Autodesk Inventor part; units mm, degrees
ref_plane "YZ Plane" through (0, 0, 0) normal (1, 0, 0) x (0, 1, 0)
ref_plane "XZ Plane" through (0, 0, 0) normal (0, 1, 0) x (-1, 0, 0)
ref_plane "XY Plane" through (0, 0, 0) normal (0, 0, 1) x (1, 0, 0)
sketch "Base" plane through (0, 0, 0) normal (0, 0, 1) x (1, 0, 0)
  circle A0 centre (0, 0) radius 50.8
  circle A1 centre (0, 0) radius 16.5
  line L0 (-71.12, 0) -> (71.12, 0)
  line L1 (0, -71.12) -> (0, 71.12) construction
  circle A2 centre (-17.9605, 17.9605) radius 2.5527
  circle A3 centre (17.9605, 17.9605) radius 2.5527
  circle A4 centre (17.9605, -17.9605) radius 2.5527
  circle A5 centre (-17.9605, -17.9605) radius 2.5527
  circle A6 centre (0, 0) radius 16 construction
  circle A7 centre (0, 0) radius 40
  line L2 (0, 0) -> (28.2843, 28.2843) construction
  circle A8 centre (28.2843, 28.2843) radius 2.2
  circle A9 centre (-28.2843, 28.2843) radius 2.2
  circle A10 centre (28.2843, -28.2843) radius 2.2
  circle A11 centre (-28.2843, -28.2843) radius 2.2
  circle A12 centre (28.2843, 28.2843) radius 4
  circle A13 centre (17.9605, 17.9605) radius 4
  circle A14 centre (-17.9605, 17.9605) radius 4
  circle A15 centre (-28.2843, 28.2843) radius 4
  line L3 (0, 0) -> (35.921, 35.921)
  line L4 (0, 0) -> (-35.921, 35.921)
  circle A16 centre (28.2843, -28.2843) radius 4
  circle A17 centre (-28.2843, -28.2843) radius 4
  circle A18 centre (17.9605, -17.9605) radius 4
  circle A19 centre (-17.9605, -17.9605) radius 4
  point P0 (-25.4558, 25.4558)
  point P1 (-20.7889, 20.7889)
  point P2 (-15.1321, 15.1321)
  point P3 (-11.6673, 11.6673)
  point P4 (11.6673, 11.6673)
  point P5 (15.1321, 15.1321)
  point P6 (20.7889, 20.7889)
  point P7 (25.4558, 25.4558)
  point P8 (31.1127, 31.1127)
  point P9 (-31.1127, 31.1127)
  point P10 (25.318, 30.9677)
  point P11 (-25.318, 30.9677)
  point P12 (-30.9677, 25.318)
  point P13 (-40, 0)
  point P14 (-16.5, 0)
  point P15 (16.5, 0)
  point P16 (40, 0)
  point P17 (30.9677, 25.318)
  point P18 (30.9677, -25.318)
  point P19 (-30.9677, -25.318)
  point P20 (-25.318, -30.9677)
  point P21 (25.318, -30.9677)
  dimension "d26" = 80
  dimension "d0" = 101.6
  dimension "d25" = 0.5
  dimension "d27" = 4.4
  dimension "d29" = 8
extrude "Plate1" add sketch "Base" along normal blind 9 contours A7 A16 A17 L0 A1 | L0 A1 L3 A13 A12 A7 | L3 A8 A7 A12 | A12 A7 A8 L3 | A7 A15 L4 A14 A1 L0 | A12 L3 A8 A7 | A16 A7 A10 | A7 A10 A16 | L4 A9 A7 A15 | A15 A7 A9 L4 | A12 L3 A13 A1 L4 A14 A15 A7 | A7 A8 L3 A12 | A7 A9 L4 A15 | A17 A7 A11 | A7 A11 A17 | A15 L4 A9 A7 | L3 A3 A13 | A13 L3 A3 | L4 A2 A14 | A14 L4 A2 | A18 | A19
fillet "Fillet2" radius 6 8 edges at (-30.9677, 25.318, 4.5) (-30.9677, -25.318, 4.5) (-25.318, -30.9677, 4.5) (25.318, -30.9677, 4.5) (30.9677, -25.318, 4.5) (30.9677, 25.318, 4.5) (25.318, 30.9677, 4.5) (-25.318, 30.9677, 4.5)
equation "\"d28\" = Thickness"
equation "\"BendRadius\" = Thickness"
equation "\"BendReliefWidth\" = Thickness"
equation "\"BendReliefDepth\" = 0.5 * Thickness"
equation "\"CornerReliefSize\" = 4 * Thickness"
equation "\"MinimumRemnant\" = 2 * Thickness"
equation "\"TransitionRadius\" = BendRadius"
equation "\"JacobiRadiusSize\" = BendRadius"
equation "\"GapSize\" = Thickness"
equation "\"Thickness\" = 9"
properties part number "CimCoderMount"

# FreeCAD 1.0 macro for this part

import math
import FreeCAD as App
import Part
import Sketcher

V = App.Vector


def edges_at(feature, points):
    """Names of the edges that pass closest to the given points."""
    edges = feature.Shape.Edges
    near = lambda p: min(range(len(edges)), key=lambda i: edges[i].distToShape(Part.Vertex(*p))[0])
    return sorted({f"Edge{near(p) + 1}" for p in points})

doc = App.newDocument("Part")
body = doc.addObject("PartDesign::Body", "Body")

# Sketch on XY plane
sketch1 = doc.addObject("Sketcher::SketchObject", "Sketch")
body.addObject(sketch1)
sketch1.AttachmentSupport = (doc.XY_Plane, [""])
sketch1.MapMode = "FlatFace"
sketch1.addGeometry([
    Part.ArcOfCircle(Part.Circle(V(0, 0, 0), V(0, 0, 1), 40), math.radians(-39), math.radians(39)),  # 0
    Part.ArcOfCircle(Part.Circle(V(28.3, 28.3, 0), V(0, 0, 1), 4), math.radians(-48), math.radians(138)),  # 1
    Part.ArcOfCircle(Part.Circle(V(0, 0, 0), V(0, 0, 1), 40), math.radians(51), math.radians(129)),  # 2
    Part.ArcOfCircle(Part.Circle(V(-28.3, 28.3, 0), V(0, 0, 1), 4), math.radians(42), math.radians(228)),  # 3
    Part.ArcOfCircle(Part.Circle(V(0, 0, 0), V(0, 0, 1), 40), math.radians(141), math.radians(219)),  # 4
    Part.ArcOfCircle(Part.Circle(V(-28.3, -28.3, 0), V(0, 0, 1), 4), math.radians(132), math.radians(318)),  # 5
    Part.ArcOfCircle(Part.Circle(V(0, 0, 0), V(0, 0, 1), 40), math.radians(-129), math.radians(-51)),  # 6
    Part.ArcOfCircle(Part.Circle(V(28.3, -28.3, 0), V(0, 0, 1), 4), math.radians(-138), math.radians(48)),  # 7
    Part.Circle(V(0, 0, 0), V(0, 0, 1), 16.5),  # 8
    Part.Circle(V(28.3, -28.3, 0), V(0, 0, 1), 2.2),  # 9
    Part.Circle(V(-28.3, -28.3, 0), V(0, 0, 1), 2.2),  # 10
    Part.Circle(V(-18, -18, 0), V(0, 0, 1), 2.6),  # 11
    Part.Circle(V(18, -18, 0), V(0, 0, 1), 2.6),  # 12
    Part.Circle(V(-28.3, 28.3, 0), V(0, 0, 1), 2.2),  # 13
    Part.Circle(V(-18, 18, 0), V(0, 0, 1), 2.6),  # 14
    Part.Circle(V(18, 18, 0), V(0, 0, 1), 2.6),  # 15
    Part.Circle(V(28.3, 28.3, 0), V(0, 0, 1), 2.2),  # 16
], False)
sketch1.addConstraint([
    Sketcher.Constraint("Coincident", 0, 2, 1, 1),
    Sketcher.Constraint("Coincident", 1, 2, 2, 1),
    Sketcher.Constraint("Coincident", 2, 2, 3, 1),
    Sketcher.Constraint("Coincident", 3, 2, 4, 1),
    Sketcher.Constraint("Coincident", 4, 2, 5, 1),
    Sketcher.Constraint("Coincident", 5, 2, 6, 1),
    Sketcher.Constraint("Coincident", 6, 2, 7, 1),
    Sketcher.Constraint("Coincident", 7, 2, 0, 1),
    Sketcher.Constraint("Coincident", 0, 3, -1, 1),
    Sketcher.Constraint("Coincident", 2, 3, -1, 1),
    Sketcher.Constraint("Coincident", 4, 3, -1, 1),
    Sketcher.Constraint("Coincident", 6, 3, -1, 1),
    Sketcher.Constraint("Coincident", 8, 3, -1, 1),
    Sketcher.Constraint("Coincident", 9, 3, 7, 3),
    Sketcher.Constraint("Coincident", 10, 3, 5, 3),
    Sketcher.Constraint("Coincident", 13, 3, 3, 3),
    Sketcher.Constraint("Coincident", 16, 3, 1, 3),
    Sketcher.Constraint("Equal", 0, 2),
    Sketcher.Constraint("Equal", 1, 3),
    Sketcher.Constraint("Equal", 2, 4),
    Sketcher.Constraint("Equal", 3, 5),
    Sketcher.Constraint("Equal", 4, 6),
    Sketcher.Constraint("Equal", 5, 7),
    Sketcher.Constraint("Equal", 9, 10),
    Sketcher.Constraint("Equal", 11, 12),
    Sketcher.Constraint("Equal", 10, 13),
    Sketcher.Constraint("Equal", 12, 14),
    Sketcher.Constraint("Equal", 14, 15),
    Sketcher.Constraint("Equal", 13, 16),
    Sketcher.Constraint("Symmetric", 1, 3, 5, 3, -1, 1),
    Sketcher.Constraint("Symmetric", 3, 3, 7, 3, -1, 1),
    Sketcher.Constraint("Symmetric", 12, 3, 14, 3, -1, 1),
    Sketcher.Constraint("Symmetric", 11, 3, 15, 3, -1, 1),
    Sketcher.Constraint("Symmetric", 1, 3, 3, 3, -2),
    Sketcher.Constraint("Symmetric", 11, 3, 12, 3, -2),
    Sketcher.Constraint("Radius", 0, 40.0),
    Sketcher.Constraint("Radius", 1, 4.0),
    Sketcher.Constraint("Diameter", 9, 4.4),
    Sketcher.Constraint("Diameter", 8, 33.0),
    Sketcher.Constraint("Diameter", 11, 5.1054),
    Sketcher.Constraint("DistanceY", -1, 1, 0, 2, 25.318),
    Sketcher.Constraint("DistanceX", -1, 1, 1, 2, 25.318),
    Sketcher.Constraint("DistanceX", 11, 3, -1, 1, 17.9605),
    Sketcher.Constraint("DistanceY", 11, 3, -1, 1, 17.9605),
])
pad1 = doc.addObject("PartDesign::Pad", "Pad")
body.addObject(pad1)
pad1.Profile = sketch1
pad1.Length = 9
doc.recompute()

fillet = doc.addObject("PartDesign::Fillet", "Fillet")
body.addObject(fillet)
fillet.Base = (pad1, edges_at(pad1, [
    (-30.968, 25.318, 4.5),
    (-30.968, -25.318, 4.5),
    (-25.318, -30.968, 4.5),
    (25.318, -30.968, 4.5),
    (30.968, -25.318, 4.5),
    (30.968, 25.318, 4.5),
    (25.318, 30.968, 4.5),
    (-25.318, 30.968, 4.5),
]))
fillet.Radius = 6

doc.recompute()
